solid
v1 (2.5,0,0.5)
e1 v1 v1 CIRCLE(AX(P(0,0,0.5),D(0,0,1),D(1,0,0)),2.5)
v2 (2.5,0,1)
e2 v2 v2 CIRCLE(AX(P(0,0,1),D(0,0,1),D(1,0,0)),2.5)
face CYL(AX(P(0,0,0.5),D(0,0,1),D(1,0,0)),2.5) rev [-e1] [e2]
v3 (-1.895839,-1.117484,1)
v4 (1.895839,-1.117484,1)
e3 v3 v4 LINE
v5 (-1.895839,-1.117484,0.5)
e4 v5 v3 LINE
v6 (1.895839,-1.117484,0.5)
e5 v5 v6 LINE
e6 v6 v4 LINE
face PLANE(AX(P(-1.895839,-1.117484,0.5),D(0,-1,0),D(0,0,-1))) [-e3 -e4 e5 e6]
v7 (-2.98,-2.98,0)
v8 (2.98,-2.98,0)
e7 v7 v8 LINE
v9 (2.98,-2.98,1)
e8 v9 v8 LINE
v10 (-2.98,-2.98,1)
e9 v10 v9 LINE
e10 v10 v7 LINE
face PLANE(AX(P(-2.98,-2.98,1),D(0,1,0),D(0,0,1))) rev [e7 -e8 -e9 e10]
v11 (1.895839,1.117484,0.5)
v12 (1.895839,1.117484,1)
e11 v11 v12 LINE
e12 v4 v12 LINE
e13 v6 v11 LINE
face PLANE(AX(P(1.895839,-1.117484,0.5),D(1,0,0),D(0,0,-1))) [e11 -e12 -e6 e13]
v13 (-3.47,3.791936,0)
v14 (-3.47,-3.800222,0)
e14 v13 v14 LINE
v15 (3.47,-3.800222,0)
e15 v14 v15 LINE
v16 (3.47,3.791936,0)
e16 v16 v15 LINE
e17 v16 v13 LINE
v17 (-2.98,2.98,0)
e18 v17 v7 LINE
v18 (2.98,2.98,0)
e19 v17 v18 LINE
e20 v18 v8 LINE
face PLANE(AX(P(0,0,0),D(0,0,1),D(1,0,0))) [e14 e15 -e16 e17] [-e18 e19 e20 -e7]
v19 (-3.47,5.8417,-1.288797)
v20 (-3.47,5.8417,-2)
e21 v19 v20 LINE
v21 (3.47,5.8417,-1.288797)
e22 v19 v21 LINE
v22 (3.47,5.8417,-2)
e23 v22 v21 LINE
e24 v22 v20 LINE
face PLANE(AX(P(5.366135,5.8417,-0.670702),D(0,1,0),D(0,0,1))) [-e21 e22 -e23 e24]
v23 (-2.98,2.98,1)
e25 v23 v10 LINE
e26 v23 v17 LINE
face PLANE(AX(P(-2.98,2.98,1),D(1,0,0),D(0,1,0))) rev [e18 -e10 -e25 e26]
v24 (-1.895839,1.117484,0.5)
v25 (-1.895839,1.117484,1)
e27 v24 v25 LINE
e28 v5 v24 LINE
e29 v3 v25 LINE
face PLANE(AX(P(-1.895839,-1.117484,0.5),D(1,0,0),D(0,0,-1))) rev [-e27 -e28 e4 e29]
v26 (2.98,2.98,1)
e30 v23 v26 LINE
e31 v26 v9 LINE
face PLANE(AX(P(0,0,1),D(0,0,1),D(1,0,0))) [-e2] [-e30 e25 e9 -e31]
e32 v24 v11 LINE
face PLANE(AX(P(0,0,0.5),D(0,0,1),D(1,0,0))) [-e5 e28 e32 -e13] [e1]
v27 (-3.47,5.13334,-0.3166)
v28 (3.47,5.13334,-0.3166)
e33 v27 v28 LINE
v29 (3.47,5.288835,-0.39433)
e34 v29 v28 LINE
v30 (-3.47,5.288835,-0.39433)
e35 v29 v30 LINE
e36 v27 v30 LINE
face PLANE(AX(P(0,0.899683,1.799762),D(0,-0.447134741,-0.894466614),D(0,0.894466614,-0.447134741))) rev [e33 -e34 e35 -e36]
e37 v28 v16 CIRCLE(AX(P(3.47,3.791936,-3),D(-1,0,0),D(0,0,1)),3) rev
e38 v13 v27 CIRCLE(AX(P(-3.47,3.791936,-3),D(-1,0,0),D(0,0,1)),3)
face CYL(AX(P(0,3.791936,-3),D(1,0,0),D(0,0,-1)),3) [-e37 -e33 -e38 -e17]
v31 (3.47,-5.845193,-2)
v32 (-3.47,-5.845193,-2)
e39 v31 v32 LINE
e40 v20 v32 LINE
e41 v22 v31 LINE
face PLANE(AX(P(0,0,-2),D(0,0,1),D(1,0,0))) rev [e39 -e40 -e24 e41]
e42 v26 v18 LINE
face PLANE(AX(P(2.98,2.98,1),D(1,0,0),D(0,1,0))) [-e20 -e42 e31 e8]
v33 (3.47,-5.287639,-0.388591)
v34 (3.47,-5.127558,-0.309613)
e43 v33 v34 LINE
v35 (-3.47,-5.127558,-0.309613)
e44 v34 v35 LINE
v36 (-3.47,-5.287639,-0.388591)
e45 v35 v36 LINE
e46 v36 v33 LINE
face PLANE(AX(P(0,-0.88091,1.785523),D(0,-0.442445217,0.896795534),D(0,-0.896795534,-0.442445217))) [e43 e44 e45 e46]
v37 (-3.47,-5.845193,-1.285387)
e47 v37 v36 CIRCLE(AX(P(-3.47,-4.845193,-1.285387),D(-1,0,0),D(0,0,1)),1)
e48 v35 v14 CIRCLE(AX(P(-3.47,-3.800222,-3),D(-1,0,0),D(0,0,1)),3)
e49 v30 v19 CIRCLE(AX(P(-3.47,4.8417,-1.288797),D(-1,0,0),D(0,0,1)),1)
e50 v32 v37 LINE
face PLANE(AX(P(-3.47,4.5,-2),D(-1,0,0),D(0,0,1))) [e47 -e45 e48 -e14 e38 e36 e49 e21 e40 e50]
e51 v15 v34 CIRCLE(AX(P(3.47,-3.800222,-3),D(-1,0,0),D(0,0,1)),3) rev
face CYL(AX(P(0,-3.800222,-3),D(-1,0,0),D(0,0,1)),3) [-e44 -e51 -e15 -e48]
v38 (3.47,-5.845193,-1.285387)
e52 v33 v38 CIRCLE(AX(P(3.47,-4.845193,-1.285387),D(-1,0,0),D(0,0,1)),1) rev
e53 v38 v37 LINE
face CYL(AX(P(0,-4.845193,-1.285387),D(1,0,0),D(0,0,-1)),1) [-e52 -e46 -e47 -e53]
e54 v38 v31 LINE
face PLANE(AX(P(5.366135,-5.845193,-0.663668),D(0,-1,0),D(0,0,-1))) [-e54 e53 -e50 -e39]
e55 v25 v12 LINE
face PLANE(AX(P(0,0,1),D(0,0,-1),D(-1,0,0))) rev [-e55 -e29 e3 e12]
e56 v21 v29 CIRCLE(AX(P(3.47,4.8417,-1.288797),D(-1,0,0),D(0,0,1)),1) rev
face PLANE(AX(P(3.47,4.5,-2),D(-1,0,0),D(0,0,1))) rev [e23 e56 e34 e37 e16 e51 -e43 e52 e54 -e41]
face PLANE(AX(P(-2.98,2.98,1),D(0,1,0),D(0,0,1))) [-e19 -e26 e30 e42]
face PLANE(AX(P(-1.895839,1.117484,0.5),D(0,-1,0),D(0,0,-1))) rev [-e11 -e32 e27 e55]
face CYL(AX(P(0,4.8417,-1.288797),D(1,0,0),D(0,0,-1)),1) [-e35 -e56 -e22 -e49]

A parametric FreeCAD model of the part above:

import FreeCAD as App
import Part
import Sketcher

V = App.Vector
Q = App.Units.Quantity


def edges_at(feature, points):
    """Names of the edges that pass closest to the given points."""
    edges = feature.Shape.Edges
    near = lambda p: min(range(len(edges)), key=lambda i: edges[i].distToShape(Part.Vertex(*p))[0])
    return sorted({f"Edge{near(p) + 1}" for p in points})

doc = App.newDocument("Part")
body = doc.addObject("PartDesign::Body", "Body")

# Sketch on XY plane
sketch1 = doc.addObject("Sketcher::SketchObject", "Sketch")
body.addObject(sketch1)
sketch1.AttachmentSupport = (doc.XY_Plane, [""])
sketch1.MapMode = "FlatFace"
sketch1.addGeometry(Part.LineSegment(V(-3, 4, 0), V(-3, -4, 0)), False)
sketch1.addGeometry(Part.LineSegment(V(-3, -4, 0), V(3, -4, 0)), False)
sketch1.addGeometry(Part.LineSegment(V(3, -4, 0), V(3, 4, 0)), False)
sketch1.addGeometry(Part.LineSegment(V(3, 4, 0), V(-3, 4, 0)), False)
sketch1.addConstraint(Sketcher.Constraint("Coincident", 0, 2, 1, 1))
sketch1.addConstraint(Sketcher.Constraint("Coincident", 1, 2, 2, 1))
sketch1.addConstraint(Sketcher.Constraint("Coincident", 2, 2, 3, 1))
sketch1.addConstraint(Sketcher.Constraint("Coincident", 3, 2, 0, 1))
sketch1.addConstraint(Sketcher.Constraint("Vertical", 0))
sketch1.addConstraint(Sketcher.Constraint("Horizontal", 1))
sketch1.addConstraint(Sketcher.Constraint("Vertical", 2))
sketch1.addConstraint(Sketcher.Constraint("Horizontal", 3))
sketch1.addConstraint(Sketcher.Constraint("Symmetric", 0, 2, 2, 2, -1, 1))
sketch1.addConstraint(Sketcher.Constraint("DistanceY", 0, 2, 0, 1, Q("9 mm")))
sketch1.addConstraint(Sketcher.Constraint("DistanceX", 1, 1, 1, 2, Q("6.94 mm")))
pad1 = doc.addObject("PartDesign::Pad", "Pad")
body.addObject(pad1)
pad1.Profile = sketch1
pad1.Length = 2
pad1.Reversed = True

# Sketch on an angled plane
sketch2 = doc.addObject("Sketcher::SketchObject", "Sketch001")
body.addObject(sketch2)
sketch2.Placement = App.Placement(V(0, 0.899683, 1.799762), App.Rotation(V(-1, 0, 0), V(0, 0.894466614, -0.447134741), V(0, -0.447134741, -0.894466614), "ZXY"))
sketch2.addGeometry(Part.LineSegment(V(-3.5, 5.5, 0), V(-3.5, 4, 0)), False)
sketch2.addGeometry(Part.LineSegment(V(-3.5, 4, 0), V(3.5, 4, 0)), False)
sketch2.addGeometry(Part.LineSegment(V(3.5, 4, 0), V(3.5, 5.5, 0)), False)
sketch2.addGeometry(Part.LineSegment(V(3.5, 5.5, 0), V(-3.5, 5.5, 0)), False)
sketch2.addConstraint(Sketcher.Constraint("Coincident", 0, 2, 1, 1))
sketch2.addConstraint(Sketcher.Constraint("Coincident", 1, 2, 2, 1))
sketch2.addConstraint(Sketcher.Constraint("Coincident", 2, 2, 3, 1))
sketch2.addConstraint(Sketcher.Constraint("Coincident", 3, 2, 0, 1))
sketch2.addConstraint(Sketcher.Constraint("Vertical", 0))
sketch2.addConstraint(Sketcher.Constraint("Horizontal", 1))
sketch2.addConstraint(Sketcher.Constraint("Vertical", 2))
sketch2.addConstraint(Sketcher.Constraint("Horizontal", 3))
sketch2.addConstraint(Sketcher.Constraint("DistanceY", 0, 2, 0, 1, Q("1.5 mm")))
sketch2.addConstraint(Sketcher.Constraint("DistanceX", 1, 1, 1, 2, Q("6.94 mm")))
sketch2.addConstraint(Sketcher.Constraint("DistanceX", 0, 2, -1, 1, Q("3.47 mm")))
sketch2.addConstraint(Sketcher.Constraint("DistanceY", -1, 1, 0, 2, Q("4.0251 mm")))
pad2 = doc.addObject("PartDesign::Pad", "Pad001")
body.addObject(pad2)
pad2.Profile = sketch2
pad2.Length = 1

# Sketch on an angled plane
sketch3 = doc.addObject("Sketcher::SketchObject", "Sketch002")
body.addObject(sketch3)
sketch3.Placement = App.Placement(V(0, -0.88091, 1.785523), App.Rotation(V(1, 0, 0), V(0, 0.896795534, 0.442445217), V(0, -0.442445217, 0.896795534), "ZXY"))
sketch3.addGeometry(Part.LineSegment(V(-3.5, -4, 0), V(-3.5, -5.5, 0)), False)
sketch3.addGeometry(Part.LineSegment(V(-3.5, -5.5, 0), V(3.5, -5.5, 0)), False)
sketch3.addGeometry(Part.LineSegment(V(3.5, -5.5, 0), V(3.5, -4, 0)), False)
sketch3.addGeometry(Part.LineSegment(V(3.5, -4, 0), V(-3.5, -4, 0)), False)
sketch3.addConstraint(Sketcher.Constraint("Coincident", 0, 2, 1, 1))
sketch3.addConstraint(Sketcher.Constraint("Coincident", 1, 2, 2, 1))
sketch3.addConstraint(Sketcher.Constraint("Coincident", 2, 2, 3, 1))
sketch3.addConstraint(Sketcher.Constraint("Coincident", 3, 2, 0, 1))
sketch3.addConstraint(Sketcher.Constraint("Vertical", 0))
sketch3.addConstraint(Sketcher.Constraint("Horizontal", 1))
sketch3.addConstraint(Sketcher.Constraint("Vertical", 2))
sketch3.addConstraint(Sketcher.Constraint("Horizontal", 3))
sketch3.addConstraint(Sketcher.Constraint("DistanceY", 0, 2, 0, 1, Q("1.5 mm")))
sketch3.addConstraint(Sketcher.Constraint("DistanceX", 1, 1, 1, 2, Q("6.94 mm")))
sketch3.addConstraint(Sketcher.Constraint("DistanceX", 0, 2, -1, 1, Q("3.47 mm")))
sketch3.addConstraint(Sketcher.Constraint("DistanceY", 0, 2, -1, 1, Q("5.53558 mm")))
pad3 = doc.addObject("PartDesign::Pad", "Pad002")
body.addObject(pad3)
pad3.Profile = sketch3
pad3.Length = 1
pad3.Reversed = True

# Sketch on YZ plane
sketch4 = doc.addObject("Sketcher::SketchObject", "Sketch003")
body.addObject(sketch4)
sketch4.AttachmentSupport = (doc.YZ_Plane, [""])
sketch4.MapMode = "FlatFace"
sketch4.AttachmentOffset = App.Placement(V(0, 0, -3.47), App.Rotation())
sketch4.addGeometry(Part.LineSegment(V(4.5, -2, 0), V(4.5, -1.1, 0)), False)
sketch4.addGeometry(Part.LineSegment(V(4.5, -1.1, 0), V(5.4, -1.6, 0)), False)
sketch4.addGeometry(Part.LineSegment(V(5.4, -1.6, 0), V(5.8, -0.7, 0)), False)
sketch4.addGeometry(Part.LineSegment(V(5.8, -0.7, 0), V(5.8, -2, 0)), False)
sketch4.addGeometry(Part.LineSegment(V(5.8, -2, 0), V(4.5, -2, 0)), False)
sketch4.addGeometry(Part.LineSegment(V(-4.5, -1.1, 0), V(-4.5, -2, 0)), False)
sketch4.addGeometry(Part.LineSegment(V(-4.5, -2, 0), V(-5.8, -2, 0)), False)
sketch4.addGeometry(Part.LineSegment(V(-5.8, -2, 0), V(-5.8, -0.7, 0)), False)
sketch4.addGeometry(Part.LineSegment(V(-5.8, -0.7, 0), V(-5.4, -1.6, 0)), False)
sketch4.addGeometry(Part.LineSegment(V(-5.4, -1.6, 0), V(-4.5, -1.1, 0)), False)
sketch4.addConstraint(Sketcher.Constraint("Coincident", 0, 2, 1, 1))
sketch4.addConstraint(Sketcher.Constraint("Coincident", 1, 2, 2, 1))
sketch4.addConstraint(Sketcher.Constraint("Coincident", 2, 2, 3, 1))
sketch4.addConstraint(Sketcher.Constraint("Coincident", 3, 2, 4, 1))
sketch4.addConstraint(Sketcher.Constraint("Coincident", 4, 2, 0, 1))
sketch4.addConstraint(Sketcher.Constraint("Coincident", 5, 2, 6, 1))
sketch4.addConstraint(Sketcher.Constraint("Coincident", 6, 2, 7, 1))
sketch4.addConstraint(Sketcher.Constraint("Coincident", 7, 2, 8, 1))
sketch4.addConstraint(Sketcher.Constraint("Coincident", 8, 2, 9, 1))
sketch4.addConstraint(Sketcher.Constraint("Coincident", 9, 2, 5, 1))
sketch4.addConstraint(Sketcher.Constraint("Vertical", 0))
sketch4.addConstraint(Sketcher.Constraint("Vertical", 3))
sketch4.addConstraint(Sketcher.Constraint("Horizontal", 4))
sketch4.addConstraint(Sketcher.Constraint("Vertical", 5))
sketch4.addConstraint(Sketcher.Constraint("Horizontal", 6))
sketch4.addConstraint(Sketcher.Constraint("Vertical", 7))
sketch4.addConstraint(Sketcher.Constraint("Symmetric", 4, 2, 5, 2, -2))
sketch4.addConstraint(Sketcher.Constraint("Perpendicular", 1, 2))
sketch4.addConstraint(Sketcher.Constraint("Perpendicular", 8, 9))
sketch4.addConstraint(Sketcher.Constraint("Equal", 2, 8))
sketch4.addConstraint(Sketcher.Constraint("Distance", 2, Q("1 mm")))
sketch4.addConstraint(Sketcher.Constraint("DistanceY", 3, 2, -1, 1, Q("2 mm")))
sketch4.addConstraint(Sketcher.Constraint("DistanceX", 5, 2, 4, 2, Q("9 mm")))
sketch4.addConstraint(Sketcher.Constraint("Angle", 1, Q("-26.56 deg")))
sketch4.addConstraint(Sketcher.Constraint("Angle", 8, Q("-63.74 deg")))
sketch4.addConstraint(Sketcher.Constraint("DistanceX", 4, 2, 4, 1, Q("1.3417 mm")))
sketch4.addConstraint(Sketcher.Constraint("DistanceY", 5, 2, 5, 1, Q("0.884919 mm")))
sketch4.addConstraint(Sketcher.Constraint("DistanceY", 1, 2, 7, 2, Q("0.901501 mm")))
sketch4.addConstraint(Sketcher.Constraint("DistanceX", 6, 2, 6, 1, Q("1.345193 mm")))
pad4 = doc.addObject("PartDesign::Pad", "Pad003")
body.addObject(pad4)
pad4.Profile = sketch4
pad4.Length = 6.94
doc.recompute()

fillet = doc.addObject("PartDesign::Fillet", "Fillet")
body.addObject(fillet)
fillet.Base = (pad4, edges_at(pad4, [(0, -4.5, 0)]))
fillet.Radius = 3
doc.recompute()

fillet2 = doc.addObject("PartDesign::Fillet", "Fillet001")
body.addObject(fillet2)
fillet2.Base = (fillet, edges_at(fillet, [(0, -5.845, -0.664)]))
fillet2.Radius = 1
doc.recompute()

fillet3 = doc.addObject("PartDesign::Fillet", "Fillet002")
body.addObject(fillet3)
fillet3.Base = (fillet2, edges_at(fillet2, [(0, 4.5, 0)]))
fillet3.Radius = 3
doc.recompute()

fillet4 = doc.addObject("PartDesign::Fillet", "Fillet003")
body.addObject(fillet4)
fillet4.Base = (fillet3, edges_at(fillet3, [(0, 5.842, -0.671)]))
fillet4.Radius = 1

# Sketch on XY plane
sketch5 = doc.addObject("Sketcher::SketchObject", "Sketch004")
body.addObject(sketch5)
sketch5.AttachmentSupport = (doc.XY_Plane, [""])
sketch5.MapMode = "FlatFace"
sketch5.addGeometry(Part.LineSegment(V(-3, 3, 0), V(-3, -3, 0)), False)
sketch5.addGeometry(Part.LineSegment(V(-3, -3, 0), V(3, -3, 0)), False)
sketch5.addGeometry(Part.LineSegment(V(3, -3, 0), V(3, 3, 0)), False)
sketch5.addGeometry(Part.LineSegment(V(3, 3, 0), V(-3, 3, 0)), False)
sketch5.addConstraint(Sketcher.Constraint("Coincident", 0, 2, 1, 1))
sketch5.addConstraint(Sketcher.Constraint("Coincident", 1, 2, 2, 1))
sketch5.addConstraint(Sketcher.Constraint("Coincident", 2, 2, 3, 1))
sketch5.addConstraint(Sketcher.Constraint("Coincident", 3, 2, 0, 1))
sketch5.addConstraint(Sketcher.Constraint("Vertical", 0))
sketch5.addConstraint(Sketcher.Constraint("Horizontal", 1))
sketch5.addConstraint(Sketcher.Constraint("Vertical", 2))
sketch5.addConstraint(Sketcher.Constraint("Horizontal", 3))
sketch5.addConstraint(Sketcher.Constraint("Symmetric", 0, 2, 2, 2, -1, 1))
sketch5.addConstraint(Sketcher.Constraint("Equal", 3, 0))
sketch5.addConstraint(Sketcher.Constraint("DistanceX", 1, 1, 1, 2, Q("5.96 mm")))
pad5 = doc.addObject("PartDesign::Pad", "Pad004")
body.addObject(pad5)
pad5.Profile = sketch5
pad5.Length = 1

# Sketch on XY plane
sketch6 = doc.addObject("Sketcher::SketchObject", "Sketch005")
body.addObject(sketch6)
sketch6.AttachmentSupport = (doc.XY_Plane, [""])
sketch6.MapMode = "FlatFace"
sketch6.AttachmentOffset = App.Placement(V(0, 0, 1), App.Rotation())
sketch6.addGeometry(Part.Circle(V(0, 0, 0), V(0, 0, 1), 2.5), False)
sketch6.addConstraint(Sketcher.Constraint("Coincident", 0, 3, -1, 1))
sketch6.addConstraint(Sketcher.Constraint("Diameter", 0, Q("5 mm")))
pocket1 = doc.addObject("PartDesign::Pocket", "Pocket")
body.addObject(pocket1)
pocket1.Profile = sketch6
pocket1.Length = 0.5

# Sketch on XY plane
sketch7 = doc.addObject("Sketcher::SketchObject", "Sketch006")
body.addObject(sketch7)
sketch7.AttachmentSupport = (doc.XY_Plane, [""])
sketch7.MapMode = "FlatFace"
sketch7.AttachmentOffset = App.Placement(V(0, 0, 1), App.Rotation())
sketch7.addGeometry(Part.LineSegment(V(-1.9, 1.1, 0), V(-1.9, -1.1, 0)), False)
sketch7.addGeometry(Part.LineSegment(V(-1.9, -1.1, 0), V(1.9, -1.1, 0)), False)
sketch7.addGeometry(Part.LineSegment(V(1.9, -1.1, 0), V(1.9, 1.1, 0)), False)
sketch7.addGeometry(Part.LineSegment(V(1.9, 1.1, 0), V(-1.9, 1.1, 0)), False)
sketch7.addConstraint(Sketcher.Constraint("Coincident", 0, 2, 1, 1))
sketch7.addConstraint(Sketcher.Constraint("Coincident", 1, 2, 2, 1))
sketch7.addConstraint(Sketcher.Constraint("Coincident", 2, 2, 3, 1))
sketch7.addConstraint(Sketcher.Constraint("Coincident", 3, 2, 0, 1))
sketch7.addConstraint(Sketcher.Constraint("Vertical", 0))
sketch7.addConstraint(Sketcher.Constraint("Horizontal", 1))
sketch7.addConstraint(Sketcher.Constraint("Vertical", 2))
sketch7.addConstraint(Sketcher.Constraint("Horizontal", 3))
sketch7.addConstraint(Sketcher.Constraint("Symmetric", 0, 2, 2, 2, -1, 1))
sketch7.addConstraint(Sketcher.Constraint("DistanceX", 1, 1, 1, 2, Q("3.791678 mm")))
sketch7.addConstraint(Sketcher.Constraint("DistanceY", 0, 2, 0, 1, Q("2.234967 mm")))
pad6 = doc.addObject("PartDesign::Pad", "Pad005")
body.addObject(pad6)
pad6.Profile = sketch7
pad6.Length = 0.5
pad6.Reversed = True

doc.recompute()
